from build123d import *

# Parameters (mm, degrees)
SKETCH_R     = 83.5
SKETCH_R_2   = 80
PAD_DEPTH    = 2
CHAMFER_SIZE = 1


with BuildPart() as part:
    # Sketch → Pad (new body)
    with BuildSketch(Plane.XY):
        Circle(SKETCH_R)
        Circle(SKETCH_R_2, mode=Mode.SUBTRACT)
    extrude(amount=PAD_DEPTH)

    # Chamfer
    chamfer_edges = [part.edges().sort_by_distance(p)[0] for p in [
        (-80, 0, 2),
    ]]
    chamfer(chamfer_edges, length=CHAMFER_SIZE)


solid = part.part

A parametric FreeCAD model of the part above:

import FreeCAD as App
import Part
import Sketcher
Q = App.Units.Quantity


def edges_at(feature, points):
    """Names of the edges that pass closest to the given points."""
    edges = feature.Shape.Edges
    near = lambda p: min(range(len(edges)), key=lambda i: edges[i].distToShape(Part.Vertex(*p))[0])
    return sorted({f"Edge{near(p) + 1}" for p in points})

doc = App.newDocument("Part")
body = doc.addObject("PartDesign::Body", "Body")

# Sketch on XY plane
sketch1 = body.newObject("Sketcher::SketchObject", "Sketch")
sketch1.AttachmentSupport = (doc.getObject("XY_Plane"), [""])
sketch1.MapMode = "FlatFace"
sketch1.addGeometry([
    Part.Circle(App.Vector(0, 0, 0), App.Vector(0, 0, 1), 84),
    Part.Circle(App.Vector(0, 0, 0), App.Vector(0, 0, 1), 80),
], False)
sketch1.addConstraint([
    Sketcher.Constraint("Coincident", 0, 3, -1, 1),
    Sketcher.Constraint("Coincident", 1, 3, -1, 1),
    Sketcher.Constraint("Diameter", 0, Q("167 mm")),
    Sketcher.Constraint("Diameter", 1, Q("160 mm")),
])
pad1 = body.newObject("PartDesign::Pad", "Pad")
pad1.Profile = sketch1
pad1.Length = 2
doc.recompute()

chamfer = body.newObject("PartDesign::Chamfer", "Chamfer")
chamfer.Base = (pad1, edges_at(pad1, [(-80, 0, 2)]))
chamfer.Size = 1

doc.recompute()
